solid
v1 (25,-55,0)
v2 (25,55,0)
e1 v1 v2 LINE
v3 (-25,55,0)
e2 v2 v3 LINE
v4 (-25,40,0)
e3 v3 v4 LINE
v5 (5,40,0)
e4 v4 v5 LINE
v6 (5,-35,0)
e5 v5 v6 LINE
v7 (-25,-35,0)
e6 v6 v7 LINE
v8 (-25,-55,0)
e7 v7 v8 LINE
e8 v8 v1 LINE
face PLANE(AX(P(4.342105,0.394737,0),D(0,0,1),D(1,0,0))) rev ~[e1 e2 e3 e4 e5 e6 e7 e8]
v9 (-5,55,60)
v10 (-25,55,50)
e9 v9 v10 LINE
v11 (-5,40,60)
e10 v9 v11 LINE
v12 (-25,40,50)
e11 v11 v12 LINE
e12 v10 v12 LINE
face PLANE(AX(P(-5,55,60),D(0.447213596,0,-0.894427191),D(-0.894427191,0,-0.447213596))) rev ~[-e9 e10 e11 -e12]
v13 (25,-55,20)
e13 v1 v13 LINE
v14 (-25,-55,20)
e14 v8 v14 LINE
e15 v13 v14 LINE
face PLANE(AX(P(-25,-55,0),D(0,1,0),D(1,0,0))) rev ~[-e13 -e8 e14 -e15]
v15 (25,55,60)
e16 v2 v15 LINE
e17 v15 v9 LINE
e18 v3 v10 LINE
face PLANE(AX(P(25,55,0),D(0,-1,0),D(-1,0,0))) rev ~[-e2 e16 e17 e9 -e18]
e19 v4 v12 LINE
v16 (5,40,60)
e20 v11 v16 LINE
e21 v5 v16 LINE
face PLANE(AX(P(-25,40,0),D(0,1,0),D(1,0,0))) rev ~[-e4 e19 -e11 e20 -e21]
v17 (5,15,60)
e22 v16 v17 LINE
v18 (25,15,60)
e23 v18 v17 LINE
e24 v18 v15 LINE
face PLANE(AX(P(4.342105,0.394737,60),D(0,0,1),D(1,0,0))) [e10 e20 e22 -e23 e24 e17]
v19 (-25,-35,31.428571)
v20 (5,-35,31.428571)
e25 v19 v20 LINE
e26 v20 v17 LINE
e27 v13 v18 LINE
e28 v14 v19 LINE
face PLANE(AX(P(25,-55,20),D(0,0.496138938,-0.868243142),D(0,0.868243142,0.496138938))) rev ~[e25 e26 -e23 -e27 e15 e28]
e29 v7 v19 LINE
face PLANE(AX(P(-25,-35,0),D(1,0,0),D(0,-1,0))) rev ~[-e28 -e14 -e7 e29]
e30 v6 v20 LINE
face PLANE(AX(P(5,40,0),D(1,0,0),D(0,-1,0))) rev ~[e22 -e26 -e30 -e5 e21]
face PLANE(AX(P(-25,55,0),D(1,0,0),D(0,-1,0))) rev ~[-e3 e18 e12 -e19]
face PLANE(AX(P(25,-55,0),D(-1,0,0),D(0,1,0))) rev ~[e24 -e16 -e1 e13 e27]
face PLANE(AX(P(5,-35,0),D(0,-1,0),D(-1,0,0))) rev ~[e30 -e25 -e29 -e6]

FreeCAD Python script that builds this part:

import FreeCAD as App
import Part
import Sketcher
from FreeCAD import Vector

doc = App.newDocument("Part")
body = doc.addObject("PartDesign::Body", "Body")

sketch1 = body.newObject("Sketcher::SketchObject", "Sketch")
sketch1.AttachmentSupport = (doc.getObject("XY_Plane"), [""])
sketch1.MapMode = "FlatFace"
sketch1.addGeometry([
    Part.LineSegment(Vector(-25, -55, 0), Vector(25, -55, 0)),
    Part.LineSegment(Vector(25, -55, 0), Vector(25, 55, 0)),
    Part.LineSegment(Vector(25, 55, 0), Vector(-25, 55, 0)),
    Part.LineSegment(Vector(-25, 55, 0), Vector(-25, 40, 0)),
    Part.LineSegment(Vector(-25, 40, 0), Vector(5, 40, 0)),
    Part.LineSegment(Vector(5, 40, 0), Vector(5, -35, 0)),
    Part.LineSegment(Vector(5, -35, 0), Vector(-25, -35, 0)),
    Part.LineSegment(Vector(-25, -35, 0), Vector(-25, -55, 0)),
], False)
sketch1.addConstraint([
    Sketcher.Constraint("Coincident", 0, 2, 1, 1),
    Sketcher.Constraint("Coincident", 1, 2, 2, 1),
    Sketcher.Constraint("Coincident", 2, 2, 3, 1),
    Sketcher.Constraint("Coincident", 3, 2, 4, 1),
    Sketcher.Constraint("Coincident", 4, 2, 5, 1),
    Sketcher.Constraint("Coincident", 5, 2, 6, 1),
    Sketcher.Constraint("Coincident", 6, 2, 7, 1),
    Sketcher.Constraint("Coincident", 7, 2, 0, 1),
    Sketcher.Constraint("Horizontal", 0),
    Sketcher.Constraint("Vertical", 1),
    Sketcher.Constraint("Horizontal", 2),
    Sketcher.Constraint("Vertical", 3),
    Sketcher.Constraint("Horizontal", 4),
    Sketcher.Constraint("Vertical", 5),
    Sketcher.Constraint("Horizontal", 6),
    Sketcher.Constraint("Vertical", 7),
    Sketcher.Constraint("Symmetric", 0, 2, 2, 2, -1, 1),
    Sketcher.Constraint("Vertical", 3, 2, 6, 2),
    Sketcher.Constraint("DistanceX", 0, 1, 0, 2, 50.0),
    Sketcher.Constraint("DistanceX", 4, 1, 4, 2, 30.0),
    Sketcher.Constraint("DistanceY", 1, 1, 1, 2, 110.0),
    Sketcher.Constraint("DistanceY", 3, 2, 3, 1, 15.0),
    Sketcher.Constraint("DistanceY", 5, 2, 5, 1, 75.0),
])
pad1 = body.newObject("PartDesign::Pad", "Pad")
pad1.Profile = sketch1
pad1.Length = 60

sketch2 = body.newObject("Sketcher::SketchObject", "Sketch001")
sketch2.AttachmentSupport = (doc.getObject("YZ_Plane"), [""])
sketch2.MapMode = "FlatFace"
sketch2.AttachmentOffset = App.Placement(Vector(0, 0, 25), App.Rotation())
sketch2.addGeometry([
    Part.LineSegment(Vector(-55, 60, 0), Vector(-55, 20, 0)),
    Part.LineSegment(Vector(-55, 20, 0), Vector(15, 60, 0)),
    Part.LineSegment(Vector(15, 60, 0), Vector(-55, 60, 0)),
], False)
sketch2.addConstraint([
    Sketcher.Constraint("Coincident", 0, 2, 1, 1),
    Sketcher.Constraint("Coincident", 1, 2, 2, 1),
    Sketcher.Constraint("Coincident", 2, 2, 0, 1),
    Sketcher.Constraint("Vertical", 0),
    Sketcher.Constraint("Horizontal", 2),
    Sketcher.Constraint("DistanceX", 2, 2, 2, 1, 70.0),
    Sketcher.Constraint("DistanceY", 0, 2, 0, 1, 40.0),
    Sketcher.Constraint("DistanceX", 0, 2, -1, 1, 55.0),
    Sketcher.Constraint("DistanceY", -1, 1, 0, 2, 20.0),
])
pocket1 = body.newObject("PartDesign::Pocket", "Pocket")
pocket1.Profile = sketch2
pocket1.Length = 60

sketch3 = body.newObject("Sketcher::SketchObject", "Sketch002")
sketch3.AttachmentSupport = (doc.getObject("XZ_Plane"), [""])
sketch3.MapMode = "FlatFace"
sketch3.AttachmentOffset = App.Placement(Vector(0, 0, -55), App.Rotation())
sketch3.addGeometry([
    Part.LineSegment(Vector(-25, 60, 0), Vector(-5, 60, 0)),
    Part.LineSegment(Vector(-5, 60, 0), Vector(-25, 50, 0)),
    Part.LineSegment(Vector(-25, 50, 0), Vector(-25, 60, 0)),
], False)
sketch3.addConstraint([
    Sketcher.Constraint("Coincident", 0, 2, 1, 1),
    Sketcher.Constraint("Coincident", 1, 2, 2, 1),
    Sketcher.Constraint("Coincident", 2, 2, 0, 1),
    Sketcher.Constraint("Horizontal", 0),
    Sketcher.Constraint("Vertical", 2),
    Sketcher.Constraint("DistanceX", 0, 1, 0, 2, 20.0),
    Sketcher.Constraint("DistanceY", 2, 1, 2, 2, 10.0),
    Sketcher.Constraint("DistanceX", 0, 2, -1, 1, 5.0),
    Sketcher.Constraint("DistanceY", -1, 1, 0, 2, 60.0),
])
pocket2 = body.newObject("PartDesign::Pocket", "Pocket001")
pocket2.Profile = sketch3
pocket2.Length = 15
pocket2.Reversed = True

doc.recompute()
